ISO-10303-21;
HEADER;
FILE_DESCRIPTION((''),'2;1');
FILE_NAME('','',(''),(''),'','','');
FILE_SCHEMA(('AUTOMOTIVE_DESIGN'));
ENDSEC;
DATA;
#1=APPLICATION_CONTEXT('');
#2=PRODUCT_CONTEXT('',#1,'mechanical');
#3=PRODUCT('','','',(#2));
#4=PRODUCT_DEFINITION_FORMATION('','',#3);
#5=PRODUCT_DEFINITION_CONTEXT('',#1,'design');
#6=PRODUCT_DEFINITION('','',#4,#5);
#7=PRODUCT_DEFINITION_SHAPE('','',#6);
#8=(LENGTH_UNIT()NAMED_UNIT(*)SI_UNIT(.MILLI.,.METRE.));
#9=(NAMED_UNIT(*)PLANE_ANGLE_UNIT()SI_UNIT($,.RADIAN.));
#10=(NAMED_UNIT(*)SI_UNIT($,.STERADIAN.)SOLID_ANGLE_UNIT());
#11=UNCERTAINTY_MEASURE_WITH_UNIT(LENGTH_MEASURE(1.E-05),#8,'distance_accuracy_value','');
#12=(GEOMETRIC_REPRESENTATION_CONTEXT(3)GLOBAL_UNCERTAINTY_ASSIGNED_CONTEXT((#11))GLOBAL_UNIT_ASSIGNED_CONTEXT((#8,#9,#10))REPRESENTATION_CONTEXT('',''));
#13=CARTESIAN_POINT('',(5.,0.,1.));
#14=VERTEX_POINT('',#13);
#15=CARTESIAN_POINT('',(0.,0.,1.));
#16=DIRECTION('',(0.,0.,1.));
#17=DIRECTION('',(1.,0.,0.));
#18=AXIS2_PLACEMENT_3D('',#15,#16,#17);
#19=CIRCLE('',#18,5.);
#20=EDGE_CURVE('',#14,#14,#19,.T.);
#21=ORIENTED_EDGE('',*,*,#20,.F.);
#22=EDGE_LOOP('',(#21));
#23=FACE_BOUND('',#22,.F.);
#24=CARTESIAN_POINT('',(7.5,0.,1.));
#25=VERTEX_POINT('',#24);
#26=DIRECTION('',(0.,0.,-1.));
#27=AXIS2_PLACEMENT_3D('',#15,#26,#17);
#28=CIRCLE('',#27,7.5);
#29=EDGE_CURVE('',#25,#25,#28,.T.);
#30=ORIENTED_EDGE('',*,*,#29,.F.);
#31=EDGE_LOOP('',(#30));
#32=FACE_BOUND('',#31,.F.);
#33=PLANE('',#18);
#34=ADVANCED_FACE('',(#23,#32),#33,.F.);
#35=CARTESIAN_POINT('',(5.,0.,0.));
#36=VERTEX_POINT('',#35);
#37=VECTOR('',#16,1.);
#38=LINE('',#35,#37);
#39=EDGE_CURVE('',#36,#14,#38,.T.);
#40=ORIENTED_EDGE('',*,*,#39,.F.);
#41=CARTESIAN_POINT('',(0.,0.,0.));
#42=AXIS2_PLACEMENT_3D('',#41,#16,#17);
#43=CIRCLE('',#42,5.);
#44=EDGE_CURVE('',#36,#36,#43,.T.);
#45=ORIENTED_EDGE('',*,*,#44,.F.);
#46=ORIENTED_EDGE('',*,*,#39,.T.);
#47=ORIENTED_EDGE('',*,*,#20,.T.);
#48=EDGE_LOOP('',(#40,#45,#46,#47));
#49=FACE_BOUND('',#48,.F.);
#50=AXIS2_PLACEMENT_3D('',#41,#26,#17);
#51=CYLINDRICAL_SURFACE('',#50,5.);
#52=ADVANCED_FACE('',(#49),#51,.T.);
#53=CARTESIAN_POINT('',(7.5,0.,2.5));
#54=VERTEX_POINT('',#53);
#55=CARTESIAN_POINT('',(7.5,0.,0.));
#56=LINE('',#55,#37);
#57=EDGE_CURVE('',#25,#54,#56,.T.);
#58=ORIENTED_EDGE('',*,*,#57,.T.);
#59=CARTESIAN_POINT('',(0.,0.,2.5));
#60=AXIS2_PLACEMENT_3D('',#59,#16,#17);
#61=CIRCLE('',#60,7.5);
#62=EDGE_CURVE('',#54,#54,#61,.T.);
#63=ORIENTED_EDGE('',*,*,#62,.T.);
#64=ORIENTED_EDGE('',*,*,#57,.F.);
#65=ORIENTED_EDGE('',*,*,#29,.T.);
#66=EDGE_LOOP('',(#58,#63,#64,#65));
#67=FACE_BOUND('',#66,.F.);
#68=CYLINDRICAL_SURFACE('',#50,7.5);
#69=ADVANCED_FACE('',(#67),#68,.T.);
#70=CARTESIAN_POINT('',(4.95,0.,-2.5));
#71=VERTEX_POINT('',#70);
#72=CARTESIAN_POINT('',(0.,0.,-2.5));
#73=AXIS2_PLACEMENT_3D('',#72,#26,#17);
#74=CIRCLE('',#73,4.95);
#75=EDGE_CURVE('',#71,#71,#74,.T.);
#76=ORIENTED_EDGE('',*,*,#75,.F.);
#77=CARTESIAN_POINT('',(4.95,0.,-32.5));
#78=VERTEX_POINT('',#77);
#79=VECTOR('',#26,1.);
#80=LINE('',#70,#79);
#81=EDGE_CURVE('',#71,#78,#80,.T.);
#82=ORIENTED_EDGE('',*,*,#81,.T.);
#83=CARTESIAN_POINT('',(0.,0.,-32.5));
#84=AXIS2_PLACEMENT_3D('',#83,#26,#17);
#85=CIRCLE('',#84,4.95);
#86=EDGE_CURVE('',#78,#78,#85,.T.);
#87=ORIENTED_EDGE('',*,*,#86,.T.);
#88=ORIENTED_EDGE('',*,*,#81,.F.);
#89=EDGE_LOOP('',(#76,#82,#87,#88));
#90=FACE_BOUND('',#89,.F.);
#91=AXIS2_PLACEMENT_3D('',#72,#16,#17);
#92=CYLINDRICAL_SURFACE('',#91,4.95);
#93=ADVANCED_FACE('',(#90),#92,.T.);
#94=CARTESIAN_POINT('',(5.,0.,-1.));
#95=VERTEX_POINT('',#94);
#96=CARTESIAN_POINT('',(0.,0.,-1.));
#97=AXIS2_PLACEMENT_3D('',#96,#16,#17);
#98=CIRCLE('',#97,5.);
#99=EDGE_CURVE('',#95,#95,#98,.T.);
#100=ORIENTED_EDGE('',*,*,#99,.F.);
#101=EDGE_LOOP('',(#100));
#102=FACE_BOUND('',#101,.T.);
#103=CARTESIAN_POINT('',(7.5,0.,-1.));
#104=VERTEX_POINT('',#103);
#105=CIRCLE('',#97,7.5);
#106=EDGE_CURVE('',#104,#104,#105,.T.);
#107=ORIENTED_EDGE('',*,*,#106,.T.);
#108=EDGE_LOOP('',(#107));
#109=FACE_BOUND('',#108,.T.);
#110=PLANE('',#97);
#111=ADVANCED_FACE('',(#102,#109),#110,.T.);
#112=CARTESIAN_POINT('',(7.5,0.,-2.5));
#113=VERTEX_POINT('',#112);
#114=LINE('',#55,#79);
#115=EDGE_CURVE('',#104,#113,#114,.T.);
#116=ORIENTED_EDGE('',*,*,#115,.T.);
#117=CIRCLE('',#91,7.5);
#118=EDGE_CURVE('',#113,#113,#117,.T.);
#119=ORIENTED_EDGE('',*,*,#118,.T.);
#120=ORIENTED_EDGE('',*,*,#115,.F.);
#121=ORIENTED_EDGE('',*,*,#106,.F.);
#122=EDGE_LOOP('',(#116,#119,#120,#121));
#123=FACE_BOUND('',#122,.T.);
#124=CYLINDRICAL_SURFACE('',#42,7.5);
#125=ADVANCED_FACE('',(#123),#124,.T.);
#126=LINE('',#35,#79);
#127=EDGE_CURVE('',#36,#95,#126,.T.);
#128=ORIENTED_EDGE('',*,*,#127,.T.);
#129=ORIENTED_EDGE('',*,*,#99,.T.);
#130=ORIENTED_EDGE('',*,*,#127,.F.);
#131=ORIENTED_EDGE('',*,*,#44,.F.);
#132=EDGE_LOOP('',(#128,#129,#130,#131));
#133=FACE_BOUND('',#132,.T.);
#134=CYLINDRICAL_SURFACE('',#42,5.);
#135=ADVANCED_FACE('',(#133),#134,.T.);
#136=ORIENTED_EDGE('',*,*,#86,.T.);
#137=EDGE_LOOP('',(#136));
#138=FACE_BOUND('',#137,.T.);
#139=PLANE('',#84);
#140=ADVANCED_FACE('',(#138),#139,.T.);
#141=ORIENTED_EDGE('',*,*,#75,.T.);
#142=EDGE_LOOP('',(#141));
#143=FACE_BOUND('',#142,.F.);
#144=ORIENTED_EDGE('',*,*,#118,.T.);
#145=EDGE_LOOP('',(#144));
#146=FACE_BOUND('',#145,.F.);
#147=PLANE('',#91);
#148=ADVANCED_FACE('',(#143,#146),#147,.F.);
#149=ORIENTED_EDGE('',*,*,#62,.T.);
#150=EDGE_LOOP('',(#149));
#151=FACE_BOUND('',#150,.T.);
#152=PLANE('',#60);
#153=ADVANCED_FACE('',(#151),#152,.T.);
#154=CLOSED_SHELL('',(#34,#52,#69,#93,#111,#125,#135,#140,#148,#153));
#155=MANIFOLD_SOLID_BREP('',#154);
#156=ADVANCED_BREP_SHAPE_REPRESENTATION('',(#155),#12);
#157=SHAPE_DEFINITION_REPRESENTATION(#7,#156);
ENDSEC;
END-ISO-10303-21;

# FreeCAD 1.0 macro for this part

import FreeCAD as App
import Part
import Sketcher

doc = App.newDocument("Part")
body = doc.addObject("PartDesign::Body", "Body")

# Sketch on XY plane
sketch1 = body.newObject("Sketcher::SketchObject", "Sketch")
sketch1.AttachmentSupport = (doc.getObject("XY_Plane"), [""])
sketch1.MapMode = "FlatFace"
sketch1.addGeometry(Part.Circle(App.Vector(0, 0, 0), App.Vector(0, 0, 1), 7.5), False)
sketch1.addConstraint([
    Sketcher.Constraint("Coincident", 0, 3, -1, 1),
    Sketcher.Constraint("Diameter", 0, 15.0),
])
pad1 = body.newObject("PartDesign::Pad", "Pad")
pad1.Profile = sketch1
pad1.Type = "TwoLengths"
pad1.Length = 2.5
pad1.Length2 = 2.5
pad1.Reversed = True

# Sketch on XY plane
sketch2 = body.newObject("Sketcher::SketchObject", "Sketch001")
sketch2.AttachmentSupport = (doc.getObject("XY_Plane"), [""])
sketch2.MapMode = "FlatFace"
sketch2.AttachmentOffset = App.Placement(App.Vector(0, 0, -2.5), App.Rotation())
sketch2.addGeometry(Part.Circle(App.Vector(0, 0, 0), App.Vector(0, 0, 1), 4.95), False)
sketch2.addConstraint([
    Sketcher.Constraint("Coincident", 0, 3, -1, 1),
    Sketcher.Constraint("Diameter", 0, 9.9),
])
pad2 = body.newObject("PartDesign::Pad", "Pad001")
pad2.Profile = sketch2
pad2.Length = 30
pad2.Reversed = True

# Sketch on XY plane
sketch3 = body.newObject("Sketcher::SketchObject", "Sketch002")
sketch3.AttachmentSupport = (doc.getObject("XY_Plane"), [""])
sketch3.MapMode = "FlatFace"
sketch3.addGeometry([
    Part.Circle(App.Vector(0, 0, 0), App.Vector(0, 0, 1), 7.55),
    Part.Circle(App.Vector(0, 0, 0), App.Vector(0, 0, 1), 5),
], False)
sketch3.addConstraint([
    Sketcher.Constraint("Coincident", 0, 3, -1, 1),
    Sketcher.Constraint("Coincident", 1, 3, -1, 1),
    Sketcher.Constraint("Diameter", 1, 10.0),
    Sketcher.Constraint("Diameter", 0, 15.1),
])
pocket1 = body.newObject("PartDesign::Pocket", "Pocket")
pocket1.Profile = sketch3
pocket1.Type = "TwoLengths"
pocket1.Length = 1
pocket1.Length2 = 1

doc.recompute()
